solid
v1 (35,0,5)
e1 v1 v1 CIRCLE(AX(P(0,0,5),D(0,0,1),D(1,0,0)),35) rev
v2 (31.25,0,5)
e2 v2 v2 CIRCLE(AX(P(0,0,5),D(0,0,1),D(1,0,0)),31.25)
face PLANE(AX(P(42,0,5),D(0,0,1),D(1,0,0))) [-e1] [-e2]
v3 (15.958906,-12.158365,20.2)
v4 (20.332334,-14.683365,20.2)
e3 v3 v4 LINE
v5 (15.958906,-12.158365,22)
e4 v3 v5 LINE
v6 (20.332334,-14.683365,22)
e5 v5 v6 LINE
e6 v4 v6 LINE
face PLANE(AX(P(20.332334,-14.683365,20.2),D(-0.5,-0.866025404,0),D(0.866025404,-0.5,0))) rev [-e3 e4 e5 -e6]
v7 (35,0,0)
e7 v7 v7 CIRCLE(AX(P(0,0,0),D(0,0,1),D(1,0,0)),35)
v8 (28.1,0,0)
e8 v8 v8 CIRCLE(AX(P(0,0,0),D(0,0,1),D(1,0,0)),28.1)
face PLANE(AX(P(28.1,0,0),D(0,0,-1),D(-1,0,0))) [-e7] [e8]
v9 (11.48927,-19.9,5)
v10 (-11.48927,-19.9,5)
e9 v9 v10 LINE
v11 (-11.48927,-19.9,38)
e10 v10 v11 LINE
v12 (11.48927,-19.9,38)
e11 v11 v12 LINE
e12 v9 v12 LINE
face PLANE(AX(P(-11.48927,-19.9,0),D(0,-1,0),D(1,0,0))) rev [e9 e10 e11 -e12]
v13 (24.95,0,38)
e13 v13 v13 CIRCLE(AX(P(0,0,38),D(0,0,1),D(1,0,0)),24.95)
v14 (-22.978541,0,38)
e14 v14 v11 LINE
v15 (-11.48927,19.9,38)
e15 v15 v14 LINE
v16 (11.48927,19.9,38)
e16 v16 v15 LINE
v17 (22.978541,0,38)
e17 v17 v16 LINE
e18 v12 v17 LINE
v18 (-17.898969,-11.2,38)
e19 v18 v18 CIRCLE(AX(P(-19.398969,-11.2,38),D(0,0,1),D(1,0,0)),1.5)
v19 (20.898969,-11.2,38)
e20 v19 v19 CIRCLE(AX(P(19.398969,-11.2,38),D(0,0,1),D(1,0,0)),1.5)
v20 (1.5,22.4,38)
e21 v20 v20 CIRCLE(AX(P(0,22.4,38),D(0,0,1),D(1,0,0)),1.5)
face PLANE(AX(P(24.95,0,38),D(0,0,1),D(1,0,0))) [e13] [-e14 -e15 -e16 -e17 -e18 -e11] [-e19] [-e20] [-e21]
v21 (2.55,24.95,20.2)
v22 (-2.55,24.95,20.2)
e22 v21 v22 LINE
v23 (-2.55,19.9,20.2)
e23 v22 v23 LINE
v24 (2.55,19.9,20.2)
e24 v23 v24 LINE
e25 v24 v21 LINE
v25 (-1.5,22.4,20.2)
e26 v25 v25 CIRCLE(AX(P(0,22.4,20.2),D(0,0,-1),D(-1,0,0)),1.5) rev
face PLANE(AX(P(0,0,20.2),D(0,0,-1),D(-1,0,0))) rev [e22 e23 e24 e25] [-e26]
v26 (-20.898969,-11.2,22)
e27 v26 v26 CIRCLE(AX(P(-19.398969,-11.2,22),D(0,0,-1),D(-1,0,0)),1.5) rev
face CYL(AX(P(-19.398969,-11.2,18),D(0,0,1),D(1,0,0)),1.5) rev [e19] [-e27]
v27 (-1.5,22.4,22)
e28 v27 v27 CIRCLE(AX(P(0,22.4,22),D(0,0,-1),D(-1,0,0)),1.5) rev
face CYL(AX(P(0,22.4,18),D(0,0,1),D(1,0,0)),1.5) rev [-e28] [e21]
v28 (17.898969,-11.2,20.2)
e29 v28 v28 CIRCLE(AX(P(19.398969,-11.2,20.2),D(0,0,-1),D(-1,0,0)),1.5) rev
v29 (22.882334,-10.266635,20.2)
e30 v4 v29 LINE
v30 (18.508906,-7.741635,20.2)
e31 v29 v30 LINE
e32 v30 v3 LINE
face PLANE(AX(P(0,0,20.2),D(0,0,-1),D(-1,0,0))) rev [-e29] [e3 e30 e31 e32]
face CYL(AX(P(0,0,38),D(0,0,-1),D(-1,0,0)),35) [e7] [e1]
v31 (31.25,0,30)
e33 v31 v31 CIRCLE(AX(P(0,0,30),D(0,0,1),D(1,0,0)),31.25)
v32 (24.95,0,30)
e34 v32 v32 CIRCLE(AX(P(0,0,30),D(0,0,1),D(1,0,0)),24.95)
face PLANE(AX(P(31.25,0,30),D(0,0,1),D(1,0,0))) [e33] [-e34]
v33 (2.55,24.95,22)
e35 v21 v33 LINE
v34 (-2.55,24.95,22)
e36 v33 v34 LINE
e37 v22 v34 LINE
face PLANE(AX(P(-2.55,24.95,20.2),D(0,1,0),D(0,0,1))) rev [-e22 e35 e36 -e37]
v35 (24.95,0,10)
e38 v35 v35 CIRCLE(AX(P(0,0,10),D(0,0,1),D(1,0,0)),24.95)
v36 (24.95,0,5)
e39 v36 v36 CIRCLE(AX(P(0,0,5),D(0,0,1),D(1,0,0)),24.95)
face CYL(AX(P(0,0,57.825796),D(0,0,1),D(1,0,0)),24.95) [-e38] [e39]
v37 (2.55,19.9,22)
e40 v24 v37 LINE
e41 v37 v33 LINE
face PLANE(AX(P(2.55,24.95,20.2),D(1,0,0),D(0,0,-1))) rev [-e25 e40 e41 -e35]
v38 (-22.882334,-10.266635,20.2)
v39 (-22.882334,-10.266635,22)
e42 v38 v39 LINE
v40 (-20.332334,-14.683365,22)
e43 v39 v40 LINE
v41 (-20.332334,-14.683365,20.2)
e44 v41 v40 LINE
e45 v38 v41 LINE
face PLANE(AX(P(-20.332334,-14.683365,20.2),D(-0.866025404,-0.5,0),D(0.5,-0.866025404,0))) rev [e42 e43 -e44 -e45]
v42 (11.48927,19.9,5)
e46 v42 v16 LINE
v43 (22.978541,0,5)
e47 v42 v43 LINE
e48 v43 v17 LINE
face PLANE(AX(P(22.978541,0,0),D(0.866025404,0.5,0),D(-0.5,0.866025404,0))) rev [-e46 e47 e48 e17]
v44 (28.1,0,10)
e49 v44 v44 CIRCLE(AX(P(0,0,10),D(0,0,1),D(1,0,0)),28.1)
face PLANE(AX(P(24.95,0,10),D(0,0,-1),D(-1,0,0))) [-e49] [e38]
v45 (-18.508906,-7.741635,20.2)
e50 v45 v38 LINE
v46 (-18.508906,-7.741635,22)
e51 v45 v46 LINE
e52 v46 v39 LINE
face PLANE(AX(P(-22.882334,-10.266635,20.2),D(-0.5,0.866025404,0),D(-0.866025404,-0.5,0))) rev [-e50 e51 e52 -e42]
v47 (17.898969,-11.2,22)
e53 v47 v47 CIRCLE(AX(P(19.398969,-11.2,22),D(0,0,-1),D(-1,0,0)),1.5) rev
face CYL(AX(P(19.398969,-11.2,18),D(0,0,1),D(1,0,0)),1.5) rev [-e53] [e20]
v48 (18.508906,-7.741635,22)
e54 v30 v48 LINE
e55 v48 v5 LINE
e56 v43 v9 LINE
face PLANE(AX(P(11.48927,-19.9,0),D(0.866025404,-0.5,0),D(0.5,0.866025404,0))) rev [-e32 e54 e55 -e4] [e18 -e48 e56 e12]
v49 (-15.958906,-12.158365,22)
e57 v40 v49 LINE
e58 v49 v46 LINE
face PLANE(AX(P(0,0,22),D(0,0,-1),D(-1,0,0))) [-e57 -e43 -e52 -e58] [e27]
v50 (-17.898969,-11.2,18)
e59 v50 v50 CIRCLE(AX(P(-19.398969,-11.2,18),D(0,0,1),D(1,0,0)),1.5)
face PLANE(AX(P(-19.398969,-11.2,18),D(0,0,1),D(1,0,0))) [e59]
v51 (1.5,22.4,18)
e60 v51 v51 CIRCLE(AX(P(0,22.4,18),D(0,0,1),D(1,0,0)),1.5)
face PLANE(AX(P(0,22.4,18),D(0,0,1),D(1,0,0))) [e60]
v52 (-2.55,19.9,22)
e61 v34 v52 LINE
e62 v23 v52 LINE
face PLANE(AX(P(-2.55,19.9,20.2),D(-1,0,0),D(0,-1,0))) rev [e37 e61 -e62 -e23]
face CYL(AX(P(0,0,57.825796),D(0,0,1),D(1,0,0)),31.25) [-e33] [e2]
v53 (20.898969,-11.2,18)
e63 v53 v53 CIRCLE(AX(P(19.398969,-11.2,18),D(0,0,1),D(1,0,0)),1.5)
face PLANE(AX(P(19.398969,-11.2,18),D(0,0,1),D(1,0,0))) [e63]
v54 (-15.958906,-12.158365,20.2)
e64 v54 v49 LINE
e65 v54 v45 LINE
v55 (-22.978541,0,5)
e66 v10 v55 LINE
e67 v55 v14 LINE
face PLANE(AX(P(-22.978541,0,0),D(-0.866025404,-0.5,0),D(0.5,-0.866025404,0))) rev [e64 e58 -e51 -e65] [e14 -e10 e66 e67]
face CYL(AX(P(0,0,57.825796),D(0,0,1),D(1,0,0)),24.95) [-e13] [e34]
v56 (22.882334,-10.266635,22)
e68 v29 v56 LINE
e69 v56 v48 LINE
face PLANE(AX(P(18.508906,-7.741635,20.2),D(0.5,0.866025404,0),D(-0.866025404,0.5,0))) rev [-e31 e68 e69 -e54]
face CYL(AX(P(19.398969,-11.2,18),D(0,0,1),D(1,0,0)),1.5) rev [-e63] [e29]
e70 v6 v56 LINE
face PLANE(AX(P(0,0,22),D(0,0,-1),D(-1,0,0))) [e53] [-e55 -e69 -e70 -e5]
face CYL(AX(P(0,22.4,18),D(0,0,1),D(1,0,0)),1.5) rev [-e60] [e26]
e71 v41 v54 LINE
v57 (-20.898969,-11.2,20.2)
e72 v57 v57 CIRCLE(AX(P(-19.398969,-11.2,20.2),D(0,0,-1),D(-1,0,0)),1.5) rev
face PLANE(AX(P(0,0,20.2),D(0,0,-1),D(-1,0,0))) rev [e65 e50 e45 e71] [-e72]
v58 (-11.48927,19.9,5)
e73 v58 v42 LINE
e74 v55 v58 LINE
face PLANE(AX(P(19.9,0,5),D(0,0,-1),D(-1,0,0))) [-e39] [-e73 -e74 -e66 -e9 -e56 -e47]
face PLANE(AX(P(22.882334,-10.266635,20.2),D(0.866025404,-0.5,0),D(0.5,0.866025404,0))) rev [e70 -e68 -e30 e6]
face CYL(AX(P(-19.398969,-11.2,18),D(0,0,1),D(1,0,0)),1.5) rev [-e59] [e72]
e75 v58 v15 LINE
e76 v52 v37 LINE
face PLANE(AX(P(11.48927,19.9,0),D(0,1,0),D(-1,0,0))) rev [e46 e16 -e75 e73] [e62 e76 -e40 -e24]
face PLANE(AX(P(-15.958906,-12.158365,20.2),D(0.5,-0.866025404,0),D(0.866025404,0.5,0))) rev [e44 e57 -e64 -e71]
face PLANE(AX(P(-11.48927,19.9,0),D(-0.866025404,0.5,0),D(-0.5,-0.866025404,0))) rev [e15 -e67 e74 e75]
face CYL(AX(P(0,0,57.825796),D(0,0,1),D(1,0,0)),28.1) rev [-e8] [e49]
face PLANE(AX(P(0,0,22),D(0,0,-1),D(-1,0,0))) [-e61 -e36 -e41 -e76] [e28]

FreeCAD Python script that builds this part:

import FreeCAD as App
import Part
import Sketcher

V = App.Vector
Q = App.Units.Quantity

doc = App.newDocument("Part")
params = doc.addObject("Spreadsheet::Sheet", "Params")
for row, (alias, value) in enumerate([
    ("sketch1_height", "33 mm"),
    ("sketch1_height2", "8 mm"),
    ("sketch1_height3", "5 mm"),
    ("sketch1_width", "6.3 mm"),
    ("sketch1_width2", "13.9 mm"),
    ("revolution_angle", "360 deg"),
    ("sketch3_diameter", "3 mm"),
    ("pocket2_length", "20 mm"),
    ("sketch4_width", "5.1 mm"),
    ("sketch4_length", "5.1 mm"),
    ("sketch4_height", "5.05 mm"),
    ("sketch4_length2", "5.05 mm"),
    ("pocket3_length", "1.8 mm"),
    ("sketch5_diameter", "5.1 mm"),
    ("pocket4_length", "3 mm"),
    ("sketch6_diameter", "3.5 mm"),
    ("pocket5_length", "3 mm"),
    ("sketch7_diameter", "70 mm"),
], start=1):
    params.set(f"A{row}", alias)
    params.set(f"B{row}", "=" + value)
    params.setAlias(f"B{row}", alias)

body = doc.addObject("PartDesign::Body", "Body")

# Sketch on XZ plane
sketch1 = doc.addObject("Sketcher::SketchObject", "Sketch")
body.addObject(sketch1)
sketch1.AttachmentSupport = (doc.XZ_Plane, [""])
sketch1.MapMode = "FlatFace"
sketch1.addGeometry([
    Part.LineSegment(V(19.9, 5, 0), V(19.9, 38, 0)),  # 0
    Part.LineSegment(V(19.9, 38, 0), V(24.95, 38, 0)),  # 1
    Part.LineSegment(V(24.95, 38, 0), V(24.95, 30, 0)),  # 2
    Part.LineSegment(V(24.95, 30, 0), V(31.25, 30, 0)),  # 3
    Part.LineSegment(V(31.25, 30, 0), V(31.25, 5, 0)),  # 4
    Part.LineSegment(V(31.25, 5, 0), V(42, 5, 0)),  # 5
    Part.LineSegment(V(42, 5, 0), V(42, 0, 0)),  # 6
    Part.LineSegment(V(42, 0, 0), V(28.1, 0, 0)),  # 7
    Part.LineSegment(V(28.1, 0, 0), V(28.1, 10, 0)),  # 8
    Part.LineSegment(V(28.1, 10, 0), V(24.95, 10, 0)),  # 9
    Part.LineSegment(V(24.95, 10, 0), V(24.95, 5, 0)),  # 10
    Part.LineSegment(V(24.95, 5, 0), V(19.9, 5, 0)),  # 11
], False)
sketch1.addConstraint([
    Sketcher.Constraint("Coincident", 0, 2, 1, 1),
    Sketcher.Constraint("Coincident", 1, 2, 2, 1),
    Sketcher.Constraint("Coincident", 2, 2, 3, 1),
    Sketcher.Constraint("Coincident", 3, 2, 4, 1),
    Sketcher.Constraint("Coincident", 4, 2, 5, 1),
    Sketcher.Constraint("Coincident", 5, 2, 6, 1),
    Sketcher.Constraint("Coincident", 6, 2, 7, 1),
    Sketcher.Constraint("Coincident", 7, 2, 8, 1),
    Sketcher.Constraint("Coincident", 8, 2, 9, 1),
    Sketcher.Constraint("Coincident", 9, 2, 10, 1),
    Sketcher.Constraint("Coincident", 10, 2, 11, 1),
    Sketcher.Constraint("Coincident", 11, 2, 0, 1),
    Sketcher.Constraint("Vertical", 0),
    Sketcher.Constraint("Horizontal", 1),
    Sketcher.Constraint("Vertical", 2),
    Sketcher.Constraint("Horizontal", 3),
    Sketcher.Constraint("Vertical", 4),
    Sketcher.Constraint("Horizontal", 5),
    Sketcher.Constraint("Vertical", 6),
    Sketcher.Constraint("Horizontal", 7),
    Sketcher.Constraint("Vertical", 8),
    Sketcher.Constraint("Horizontal", 9),
    Sketcher.Constraint("Vertical", 10),
    Sketcher.Constraint("Horizontal", 11),
    Sketcher.Constraint("PointOnObject", 6, 2, -1),
    Sketcher.Constraint("Horizontal", 5, 2, 10, 2),
    Sketcher.Constraint("Vertical", 2, 2, 9, 2),
    Sketcher.Constraint("Equal", 6, 10),
    Sketcher.Constraint("DistanceY", 0, 1, 0, 2, Q("33 mm")),
    Sketcher.Constraint("DistanceY", 2, 2, 2, 1, Q("8 mm")),
    Sketcher.Constraint("DistanceY", 6, 2, 6, 1, Q("5 mm")),
    Sketcher.Constraint("DistanceX", 3, 1, 3, 2, Q("6.3 mm")),
    Sketcher.Constraint("DistanceX", 7, 2, 7, 1, Q("13.9 mm")),
    Sketcher.Constraint("DistanceX", -1, 1, 5, 2, Q("42 mm")),
    Sketcher.Constraint("DistanceX", 1, 1, 1, 2, Q("5.05 mm")),
    Sketcher.Constraint("DistanceX", 5, 1, 5, 2, Q("10.75 mm")),
])
sketch1.setExpression("Constraints[28]", "Params.sketch1_height")
sketch1.setExpression("Constraints[29]", "Params.sketch1_height2")
sketch1.setExpression("Constraints[30]", "Params.sketch1_height3")
sketch1.setExpression("Constraints[31]", "Params.sketch1_width")
sketch1.setExpression("Constraints[32]", "Params.sketch1_width2")
revolution = doc.addObject("PartDesign::Revolution", "Revolution")
body.addObject(revolution)
revolution.Profile = sketch1
revolution.ReferenceAxis = (sketch1, ["V_Axis"])
revolution.setExpression("Angle", "Params.revolution_angle")

# Sketch on XY plane
sketch2 = doc.addObject("Sketcher::SketchObject", "Sketch001")
body.addObject(sketch2)
sketch2.AttachmentSupport = (doc.XY_Plane, [""])
sketch2.MapMode = "FlatFace"
sketch2.AttachmentOffset = App.Placement(V(0, 0, 38), App.Rotation())
sketch2.addGeometry([
    Part.LineSegment(V(-22.978541, 0, 0), V(-11.48927, -19.9, 0)),  # 0
    Part.LineSegment(V(-11.48927, -19.9, 0), V(11.48927, -19.9, 0)),  # 1
    Part.LineSegment(V(11.48927, -19.9, 0), V(22.978541, 0, 0)),  # 2
    Part.LineSegment(V(22.978541, 0, 0), V(11.48927, 19.9, 0)),  # 3
    Part.LineSegment(V(11.48927, 19.9, 0), V(-11.48927, 19.9, 0)),  # 4
    Part.LineSegment(V(-11.48927, 19.9, 0), V(-22.978541, 0, 0)),  # 5
], False)
sketch2.addConstraint([
    Sketcher.Constraint("Coincident", 0, 2, 1, 1),
    Sketcher.Constraint("Coincident", 1, 2, 2, 1),
    Sketcher.Constraint("Coincident", 2, 2, 3, 1),
    Sketcher.Constraint("Coincident", 3, 2, 4, 1),
    Sketcher.Constraint("Coincident", 4, 2, 5, 1),
    Sketcher.Constraint("Coincident", 5, 2, 0, 1),
    Sketcher.Constraint("Horizontal", 1),
    Sketcher.Constraint("Horizontal", 4),
    Sketcher.Constraint("Symmetric", 0, 2, 3, 2, -1, 1),
    Sketcher.Constraint("Symmetric", 2, 2, 5, 2, -1, 1),
    Sketcher.Constraint("PointOnObject", 2, 2, -1),
    Sketcher.Constraint("Parallel", 2, 5),
    Sketcher.Constraint("Vertical", 1, 2, 3, 2),
    Sketcher.Constraint("Angle", 0, Q("-60 deg")),
    Sketcher.Constraint("DistanceY", 0, 2, -1, 1, Q("19.9 mm")),
    Sketcher.Constraint("DistanceX", 1, 1, 1, 2, Q("22.978541 mm")),
])
pocket1 = doc.addObject("PartDesign::Pocket", "Pocket")
body.addObject(pocket1)
pocket1.Profile = sketch2
pocket1.Type = "ThroughAll"

# Sketch on XY plane
sketch3 = doc.addObject("Sketcher::SketchObject", "Sketch002")
body.addObject(sketch3)
sketch3.AttachmentSupport = (doc.XY_Plane, [""])
sketch3.MapMode = "FlatFace"
sketch3.AttachmentOffset = App.Placement(V(0, 0, 38), App.Rotation())
sketch3.addGeometry([
    Part.Circle(V(0, 22.4, 0), V(0, 0, 1), 1.5),
    Part.Circle(V(19.398969, -11.2, 0), V(0, 0, 1), 1.5),
    Part.Circle(V(-19.398969, -11.2, 0), V(0, 0, 1), 1.5),
], False)
sketch3.addConstraint([
    Sketcher.Constraint("Equal", 0, 1),
    Sketcher.Constraint("Equal", 1, 2),
    Sketcher.Constraint("Symmetric", 1, 3, 2, 3, -2),
    Sketcher.Constraint("PointOnObject", 0, 3, -2),
    Sketcher.Constraint("Diameter", 0, Q("3 mm")),
    Sketcher.Constraint("DistanceY", -1, 1, 0, 3, Q("22.4 mm")),
    Sketcher.Constraint("DistanceY", 1, 3, -1, 1, Q("11.2 mm")),
    Sketcher.Constraint("DistanceX", -1, 1, 1, 3, Q("19.398969 mm")),
])
sketch3.setExpression("Constraints[4]", "Params.sketch3_diameter")
pocket2 = doc.addObject("PartDesign::Pocket", "Pocket001")
body.addObject(pocket2)
pocket2.Profile = sketch3
pocket2.setExpression("Length", "Params.pocket2_length")

# Sketch on XY plane
sketch4 = doc.addObject("Sketcher::SketchObject", "Sketch003")
body.addObject(sketch4)
sketch4.AttachmentSupport = (doc.XY_Plane, [""])
sketch4.MapMode = "FlatFace"
sketch4.AttachmentOffset = App.Placement(V(0, 0, 22), App.Rotation())
sketch4.addGeometry([
    Part.LineSegment(V(-2.55, 24.95, 0), V(-2.55, 19.9, 0)),  # 0
    Part.LineSegment(V(-2.55, 19.9, 0), V(2.55, 19.9, 0)),  # 1
    Part.LineSegment(V(2.55, 19.9, 0), V(2.55, 24.95, 0)),  # 2
    Part.LineSegment(V(2.55, 24.95, 0), V(-2.55, 24.95, 0)),  # 3
    Part.LineSegment(V(18.508906, -7.741635, 0), V(15.958906, -12.158365, 0)),  # 4
    Part.LineSegment(V(15.958906, -12.158365, 0), V(20.332334, -14.683365, 0)),  # 5
    Part.LineSegment(V(20.332334, -14.683365, 0), V(22.882334, -10.266635, 0)),  # 6
    Part.LineSegment(V(22.882334, -10.266635, 0), V(18.508906, -7.741635, 0)),  # 7
    Part.LineSegment(V(-15.958906, -12.158365, 0), V(-18.508906, -7.741635, 0)),  # 8
    Part.LineSegment(V(-18.508906, -7.741635, 0), V(-22.882334, -10.266635, 0)),  # 9
    Part.LineSegment(V(-22.882334, -10.266635, 0), V(-20.332334, -14.683365, 0)),  # 10
    Part.LineSegment(V(-20.332334, -14.683365, 0), V(-15.958906, -12.158365, 0)),  # 11
], False)
sketch4.addConstraint([
    Sketcher.Constraint("Coincident", 0, 2, 1, 1),
    Sketcher.Constraint("Coincident", 1, 2, 2, 1),
    Sketcher.Constraint("Coincident", 2, 2, 3, 1),
    Sketcher.Constraint("Coincident", 3, 2, 0, 1),
    Sketcher.Constraint("Coincident", 4, 2, 5, 1),
    Sketcher.Constraint("Coincident", 5, 2, 6, 1),
    Sketcher.Constraint("Coincident", 6, 2, 7, 1),
    Sketcher.Constraint("Coincident", 7, 2, 4, 1),
    Sketcher.Constraint("Coincident", 8, 2, 9, 1),
    Sketcher.Constraint("Coincident", 9, 2, 10, 1),
    Sketcher.Constraint("Coincident", 10, 2, 11, 1),
    Sketcher.Constraint("Coincident", 11, 2, 8, 1),
    Sketcher.Constraint("Vertical", 0),
    Sketcher.Constraint("Horizontal", 1),
    Sketcher.Constraint("Vertical", 2),
    Sketcher.Constraint("Horizontal", 3),
    Sketcher.Constraint("Symmetric", 7, 2, 8, 2, -2),
    Sketcher.Constraint("Symmetric", 6, 2, 9, 2, -2),
    Sketcher.Constraint("Symmetric", 5, 2, 10, 2, -2),
    Sketcher.Constraint("Symmetric", 4, 2, 11, 2, -2),
    Sketcher.Constraint("Perpendicular", 4, 5),
    Sketcher.Constraint("Perpendicular", 5, 6),
    Sketcher.Constraint("Perpendicular", 6, 7),
    Sketcher.Constraint("Angle", 4, Q("-120 deg")),
    Sketcher.Constraint("DistanceX", 1, 1, 1, 2, Q("5.1 mm")),
    Sketcher.Constraint("Distance", 4, Q("5.1 mm")),
    Sketcher.Constraint("DistanceY", 0, 2, 0, 1, Q("5.05 mm")),
    Sketcher.Constraint("DistanceY", -1, 1, 0, 2, Q("19.9 mm")),
    Sketcher.Constraint("Distance", 5, Q("5.05 mm")),
    Sketcher.Constraint("DistanceX", 0, 2, -1, 1, Q("2.55 mm")),
    Sketcher.Constraint("DistanceX", 8, 2, 4, 2, Q("34.467811 mm")),
    Sketcher.Constraint("DistanceY", 4, 2, -1, 1, Q("12.158365 mm")),
])
sketch4.setExpression("Constraints[24]", "Params.sketch4_width")
sketch4.setExpression("Constraints[25]", "Params.sketch4_length")
sketch4.setExpression("Constraints[26]", "Params.sketch4_height")
sketch4.setExpression("Constraints[28]", "Params.sketch4_length2")
pocket3 = doc.addObject("PartDesign::Pocket", "Pocket002")
body.addObject(pocket3)
pocket3.Profile = sketch4
pocket3.setExpression("Length", "Params.pocket3_length")

# Sketch on XY plane
sketch5 = doc.addObject("Sketcher::SketchObject", "Sketch004")
body.addObject(sketch5)
sketch5.AttachmentSupport = (doc.XY_Plane, [""])
sketch5.MapMode = "FlatFace"
sketch5.addGeometry([
    Part.Circle(V(0, 38, 0), V(0, 0, 1), 2.55),
    Part.Circle(V(-38, 0, 0), V(0, 0, 1), 2.55),
    Part.Circle(V(0, -38, 0), V(0, 0, 1), 2.55),
    Part.Circle(V(38, 0, 0), V(0, 0, 1), 2.55),
], False)
sketch5.addConstraint([
    Sketcher.Constraint("Equal", 0, 1),
    Sketcher.Constraint("Equal", 1, 2),
    Sketcher.Constraint("Equal", 2, 3),
    Sketcher.Constraint("Symmetric", 0, 3, 2, 3, -1, 1),
    Sketcher.Constraint("Symmetric", 1, 3, 3, 3, -1, 1),
    Sketcher.Constraint("PointOnObject", 0, 3, -2),
    Sketcher.Constraint("PointOnObject", 1, 3, -1),
    Sketcher.Constraint("Diameter", 0, Q("5.1 mm")),
    Sketcher.Constraint("DistanceY", -1, 1, 0, 3, Q("38 mm")),
    Sketcher.Constraint("DistanceX", 1, 3, -1, 1, Q("38 mm")),
])
sketch5.setExpression("Constraints[7]", "Params.sketch5_diameter")
pocket4 = doc.addObject("PartDesign::Pocket", "Pocket003")
body.addObject(pocket4)
pocket4.Profile = sketch5
pocket4.setExpression("Length", "Params.pocket4_length")
pocket4.Reversed = True

# Sketch on XY plane
sketch6 = doc.addObject("Sketcher::SketchObject", "Sketch005")
body.addObject(sketch6)
sketch6.AttachmentSupport = (doc.XY_Plane, [""])
sketch6.MapMode = "FlatFace"
sketch6.AttachmentOffset = App.Placement(V(0, 0, 3), App.Rotation())
sketch6.addGeometry([
    Part.Circle(V(0, 38, 0), V(0, 0, 1), 1.75),
    Part.Circle(V(-38, 0, 0), V(0, 0, 1), 1.75),
    Part.Circle(V(0, -38, 0), V(0, 0, 1), 1.75),
    Part.Circle(V(38, 0, 0), V(0, 0, 1), 1.75),
], False)
sketch6.addConstraint([
    Sketcher.Constraint("Equal", 0, 1),
    Sketcher.Constraint("Equal", 1, 2),
    Sketcher.Constraint("Equal", 2, 3),
    Sketcher.Constraint("Symmetric", 0, 3, 2, 3, -1, 1),
    Sketcher.Constraint("Symmetric", 1, 3, 3, 3, -1, 1),
    Sketcher.Constraint("PointOnObject", 0, 3, -2),
    Sketcher.Constraint("PointOnObject", 1, 3, -1),
    Sketcher.Constraint("Diameter", 0, Q("3.5 mm")),
    Sketcher.Constraint("DistanceY", -1, 1, 0, 3, Q("38 mm")),
    Sketcher.Constraint("DistanceX", 1, 3, -1, 1, Q("38 mm")),
])
sketch6.setExpression("Constraints[7]", "Params.sketch6_diameter")
pocket5 = doc.addObject("PartDesign::Pocket", "Pocket004")
body.addObject(pocket5)
pocket5.Profile = sketch6
pocket5.setExpression("Length", "Params.pocket5_length")
pocket5.Reversed = True

# Sketch on XY plane
sketch7 = doc.addObject("Sketcher::SketchObject", "Sketch006")
body.addObject(sketch7)
sketch7.AttachmentSupport = (doc.XY_Plane, [""])
sketch7.MapMode = "FlatFace"
sketch7.addGeometry([
    Part.LineSegment(V(-55.472, 55.472, 0), V(-55.472, -55.472, 0)),  # 0
    Part.LineSegment(V(-55.472, -55.472, 0), V(55.472, -55.472, 0)),  # 1
    Part.LineSegment(V(55.472, -55.472, 0), V(55.472, 55.472, 0)),  # 2
    Part.LineSegment(V(55.472, 55.472, 0), V(-55.472, 55.472, 0)),  # 3
    Part.Circle(V(0, 0, 0), V(0, 0, 1), 35),  # 4
], False)
sketch7.addConstraint([
    Sketcher.Constraint("Coincident", 0, 2, 1, 1),
    Sketcher.Constraint("Coincident", 1, 2, 2, 1),
    Sketcher.Constraint("Coincident", 2, 2, 3, 1),
    Sketcher.Constraint("Coincident", 3, 2, 0, 1),
    Sketcher.Constraint("Vertical", 0),
    Sketcher.Constraint("Horizontal", 1),
    Sketcher.Constraint("Vertical", 2),
    Sketcher.Constraint("Horizontal", 3),
    Sketcher.Constraint("Coincident", 4, 3, -1, 1),
    Sketcher.Constraint("Symmetric", 0, 2, 2, 2, -1, 1),
    Sketcher.Constraint("Equal", 3, 0),
    Sketcher.Constraint("Diameter", 4, Q("70 mm")),
    Sketcher.Constraint("DistanceX", 1, 1, 1, 2, Q("110.944 mm")),
])
sketch7.setExpression("Constraints[11]", "Params.sketch7_diameter")
pocket6 = doc.addObject("PartDesign::Pocket", "Pocket005")
body.addObject(pocket6)
pocket6.Profile = sketch7
pocket6.Type = "ThroughAll"
pocket6.Reversed = True

doc.recompute()
